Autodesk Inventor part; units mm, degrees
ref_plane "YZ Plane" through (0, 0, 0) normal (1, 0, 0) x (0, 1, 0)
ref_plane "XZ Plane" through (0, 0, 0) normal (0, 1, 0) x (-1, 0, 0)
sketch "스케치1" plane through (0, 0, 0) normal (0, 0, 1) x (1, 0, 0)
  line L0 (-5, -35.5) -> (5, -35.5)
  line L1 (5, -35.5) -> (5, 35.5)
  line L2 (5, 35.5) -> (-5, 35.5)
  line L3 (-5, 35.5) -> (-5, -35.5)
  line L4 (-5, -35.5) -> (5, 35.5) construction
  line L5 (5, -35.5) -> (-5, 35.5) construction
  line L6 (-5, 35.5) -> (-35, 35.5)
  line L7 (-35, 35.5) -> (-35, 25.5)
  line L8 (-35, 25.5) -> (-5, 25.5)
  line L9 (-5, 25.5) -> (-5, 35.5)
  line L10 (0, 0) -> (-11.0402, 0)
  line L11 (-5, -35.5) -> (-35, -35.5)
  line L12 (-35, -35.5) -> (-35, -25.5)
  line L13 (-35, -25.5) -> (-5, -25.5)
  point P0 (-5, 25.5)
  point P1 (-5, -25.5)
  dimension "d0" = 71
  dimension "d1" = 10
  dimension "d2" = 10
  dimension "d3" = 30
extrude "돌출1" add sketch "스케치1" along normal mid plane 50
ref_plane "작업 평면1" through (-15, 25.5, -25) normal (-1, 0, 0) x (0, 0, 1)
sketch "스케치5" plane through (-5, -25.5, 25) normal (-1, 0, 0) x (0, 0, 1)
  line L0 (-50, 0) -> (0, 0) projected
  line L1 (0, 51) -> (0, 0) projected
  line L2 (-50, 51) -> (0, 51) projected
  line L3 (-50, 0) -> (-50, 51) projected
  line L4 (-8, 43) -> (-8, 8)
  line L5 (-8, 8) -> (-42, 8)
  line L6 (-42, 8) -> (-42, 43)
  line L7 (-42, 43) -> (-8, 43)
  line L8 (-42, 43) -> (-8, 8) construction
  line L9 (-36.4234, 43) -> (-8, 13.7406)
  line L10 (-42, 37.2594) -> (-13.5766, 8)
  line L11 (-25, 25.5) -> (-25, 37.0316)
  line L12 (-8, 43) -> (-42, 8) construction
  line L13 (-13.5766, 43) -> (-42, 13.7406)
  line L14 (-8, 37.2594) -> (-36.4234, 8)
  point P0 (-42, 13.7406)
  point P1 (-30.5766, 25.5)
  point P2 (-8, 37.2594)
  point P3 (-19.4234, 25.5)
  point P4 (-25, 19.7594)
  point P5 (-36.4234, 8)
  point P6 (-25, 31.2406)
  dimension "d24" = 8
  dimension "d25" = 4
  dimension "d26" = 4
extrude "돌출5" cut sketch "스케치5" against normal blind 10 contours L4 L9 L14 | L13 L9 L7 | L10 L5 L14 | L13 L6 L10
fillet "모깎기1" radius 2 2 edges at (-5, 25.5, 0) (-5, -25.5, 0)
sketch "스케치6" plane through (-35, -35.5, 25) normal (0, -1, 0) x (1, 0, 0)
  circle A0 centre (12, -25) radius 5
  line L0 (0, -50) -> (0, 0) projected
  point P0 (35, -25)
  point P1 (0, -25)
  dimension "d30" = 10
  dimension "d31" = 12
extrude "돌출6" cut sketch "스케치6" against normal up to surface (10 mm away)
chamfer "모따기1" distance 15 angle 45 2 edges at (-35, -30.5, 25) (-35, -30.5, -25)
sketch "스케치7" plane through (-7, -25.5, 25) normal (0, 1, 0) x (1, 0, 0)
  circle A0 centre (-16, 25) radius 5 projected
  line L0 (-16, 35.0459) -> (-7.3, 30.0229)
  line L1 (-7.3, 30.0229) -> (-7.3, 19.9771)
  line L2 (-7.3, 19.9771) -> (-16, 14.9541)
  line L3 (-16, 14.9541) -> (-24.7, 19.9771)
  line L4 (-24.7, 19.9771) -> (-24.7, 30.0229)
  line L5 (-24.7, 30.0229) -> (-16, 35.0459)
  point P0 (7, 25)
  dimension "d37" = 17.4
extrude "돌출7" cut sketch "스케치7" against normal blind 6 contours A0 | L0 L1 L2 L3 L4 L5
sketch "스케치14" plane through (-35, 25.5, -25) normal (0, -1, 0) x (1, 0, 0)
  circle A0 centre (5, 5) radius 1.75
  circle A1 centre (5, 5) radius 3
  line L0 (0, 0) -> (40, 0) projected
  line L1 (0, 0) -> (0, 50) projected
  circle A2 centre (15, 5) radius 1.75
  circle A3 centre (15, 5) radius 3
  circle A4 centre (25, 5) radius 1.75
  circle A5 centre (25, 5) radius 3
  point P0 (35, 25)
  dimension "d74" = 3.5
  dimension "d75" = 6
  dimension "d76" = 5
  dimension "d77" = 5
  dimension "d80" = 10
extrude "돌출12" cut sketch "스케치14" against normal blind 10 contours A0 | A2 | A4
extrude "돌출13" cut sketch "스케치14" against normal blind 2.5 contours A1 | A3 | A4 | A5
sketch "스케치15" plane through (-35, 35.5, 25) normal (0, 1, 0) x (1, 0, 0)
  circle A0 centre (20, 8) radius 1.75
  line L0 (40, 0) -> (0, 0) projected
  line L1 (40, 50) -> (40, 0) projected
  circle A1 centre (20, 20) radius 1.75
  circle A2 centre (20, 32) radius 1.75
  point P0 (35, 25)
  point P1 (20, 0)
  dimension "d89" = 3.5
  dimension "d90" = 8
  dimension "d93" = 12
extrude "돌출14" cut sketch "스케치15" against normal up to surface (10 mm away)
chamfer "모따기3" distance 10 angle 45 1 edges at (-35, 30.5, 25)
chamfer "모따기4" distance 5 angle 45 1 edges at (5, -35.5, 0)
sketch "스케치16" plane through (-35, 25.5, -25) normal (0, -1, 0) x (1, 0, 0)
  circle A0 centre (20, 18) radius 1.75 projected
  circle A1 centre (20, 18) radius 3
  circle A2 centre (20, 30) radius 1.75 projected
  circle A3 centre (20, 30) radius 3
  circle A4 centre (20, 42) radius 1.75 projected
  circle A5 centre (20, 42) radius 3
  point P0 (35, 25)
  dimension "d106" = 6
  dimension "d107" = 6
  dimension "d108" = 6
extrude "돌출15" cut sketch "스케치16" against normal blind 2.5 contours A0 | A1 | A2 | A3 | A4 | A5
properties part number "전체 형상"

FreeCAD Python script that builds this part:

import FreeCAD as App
import Part
import Sketcher

V = App.Vector
Q = App.Units.Quantity


def edges_at(feature, points):
    """Names of the edges that pass closest to the given points."""
    edges = feature.Shape.Edges
    near = lambda p: min(range(len(edges)), key=lambda i: edges[i].distToShape(Part.Vertex(*p))[0])
    return sorted({f"Edge{near(p) + 1}" for p in points})

doc = App.newDocument("Part")
body = doc.addObject("PartDesign::Body", "Body")

sketch1 = body.newObject("Sketcher::SketchObject", "Sketch")
sketch1.AttachmentSupport = (doc.getObject("XY_Plane"), [""])
sketch1.MapMode = "FlatFace"
sketch1.addGeometry([
    Part.LineSegment(V(-5, -25.5, 0), V(-35, -25.5, 0)),
    Part.LineSegment(V(-35, -25.5, 0), V(-35, -35.5, 0)),
    Part.LineSegment(V(-35, -35.5, 0), V(5, -35.5, 0)),
    Part.LineSegment(V(5, -35.5, 0), V(5, 35.5, 0)),
    Part.LineSegment(V(5, 35.5, 0), V(-35, 35.5, 0)),
    Part.LineSegment(V(-35, 35.5, 0), V(-35, 25.5, 0)),
    Part.LineSegment(V(-35, 25.5, 0), V(-5, 25.5, 0)),
    Part.LineSegment(V(-5, 25.5, 0), V(-5, -25.5, 0)),
], False)
sketch1.addConstraint([
    Sketcher.Constraint("Coincident", 0, 2, 1, 1),
    Sketcher.Constraint("Coincident", 1, 2, 2, 1),
    Sketcher.Constraint("Coincident", 2, 2, 3, 1),
    Sketcher.Constraint("Coincident", 3, 2, 4, 1),
    Sketcher.Constraint("Coincident", 4, 2, 5, 1),
    Sketcher.Constraint("Coincident", 5, 2, 6, 1),
    Sketcher.Constraint("Coincident", 6, 2, 7, 1),
    Sketcher.Constraint("Coincident", 7, 2, 0, 1),
    Sketcher.Constraint("Horizontal", 0),
    Sketcher.Constraint("Vertical", 1),
    Sketcher.Constraint("Horizontal", 2),
    Sketcher.Constraint("Vertical", 3),
    Sketcher.Constraint("Horizontal", 4),
    Sketcher.Constraint("Vertical", 5),
    Sketcher.Constraint("Horizontal", 6),
    Sketcher.Constraint("Vertical", 7),
    Sketcher.Constraint("Symmetric", 1, 2, 4, 2, -1),
    Sketcher.Constraint("Equal", 1, 5),
    Sketcher.Constraint("DistanceX", 0, 2, 0, 1, Q("30 mm")),
    Sketcher.Constraint("DistanceY", 1, 2, 1, 1, Q("10 mm")),
    Sketcher.Constraint("DistanceY", 3, 1, 3, 2, Q("71 mm")),
    Sketcher.Constraint("DistanceX", 6, 2, 3, 2, Q("10 mm")),
    Sketcher.Constraint("DistanceX", 0, 2, -1, 1, Q("35 mm")),
])
pad1 = body.newObject("PartDesign::Pad", "Pad")
pad1.Profile = sketch1
pad1.Length = 50
pad1.Midplane = True

sketch2 = body.newObject("Sketcher::SketchObject", "Sketch001")
sketch2.AttachmentSupport = (doc.getObject("YZ_Plane"), [""])
sketch2.MapMode = "FlatFace"
sketch2.AttachmentOffset = App.Placement(V(0, 0, -5), App.Rotation())
sketch2.addGeometry([
    Part.LineSegment(V(-11.7594, 17, 0), V(11.7594, 17, 0)),
    Part.LineSegment(V(11.7594, 17, 0), V(0, 5.57659, 0)),
    Part.LineSegment(V(0, 5.57659, 0), V(-11.7594, 17, 0)),
    Part.LineSegment(V(5.740611, 0, 0), V(17.5, 11.4234, 0)),
    Part.LineSegment(V(17.5, 11.4234, 0), V(17.5, -11.4234, 0)),
    Part.LineSegment(V(17.5, -11.4234, 0), V(5.740611, 0, 0)),
    Part.LineSegment(V(-17.5, 11.4234, 0), V(-5.740611, 0, 0)),
    Part.LineSegment(V(-5.740611, 0, 0), V(-17.5, -11.4234, 0)),
    Part.LineSegment(V(-17.5, -11.4234, 0), V(-17.5, 11.4234, 0)),
    Part.LineSegment(V(-11.7594, -17, 0), V(0, -5.57659, 0)),
    Part.LineSegment(V(0, -5.57659, 0), V(11.7594, -17, 0)),
    Part.LineSegment(V(11.7594, -17, 0), V(-11.7594, -17, 0)),
], False)
sketch2.addConstraint([
    Sketcher.Constraint("Coincident", 0, 2, 1, 1),
    Sketcher.Constraint("Coincident", 1, 2, 2, 1),
    Sketcher.Constraint("Coincident", 2, 2, 0, 1),
    Sketcher.Constraint("Coincident", 3, 2, 4, 1),
    Sketcher.Constraint("Coincident", 4, 2, 5, 1),
    Sketcher.Constraint("Coincident", 5, 2, 3, 1),
    Sketcher.Constraint("Coincident", 6, 2, 7, 1),
    Sketcher.Constraint("Coincident", 7, 2, 8, 1),
    Sketcher.Constraint("Coincident", 8, 2, 6, 1),
    Sketcher.Constraint("Coincident", 9, 2, 10, 1),
    Sketcher.Constraint("Coincident", 10, 2, 11, 1),
    Sketcher.Constraint("Coincident", 11, 2, 9, 1),
    Sketcher.Constraint("Horizontal", 0),
    Sketcher.Constraint("Vertical", 4),
    Sketcher.Constraint("Vertical", 8),
    Sketcher.Constraint("Horizontal", 11),
    Sketcher.Constraint("Symmetric", 5, 2, 6, 2, -1, 1),
    Sketcher.Constraint("Symmetric", 3, 2, 7, 2, -1, 1),
    Sketcher.Constraint("Symmetric", 1, 2, 9, 2, -1, 1),
    Sketcher.Constraint("Symmetric", 2, 2, 10, 2, -1, 1),
    Sketcher.Constraint("PointOnObject", 1, 2, -2),
    Sketcher.Constraint("PointOnObject", 5, 2, -1),
    Sketcher.Constraint("Parallel", 1, 3),
    Sketcher.Constraint("Parallel", 2, 5),
    Sketcher.Constraint("Parallel", 5, 6),
    Sketcher.Constraint("Parallel", 7, 9),
    Sketcher.Constraint("Horizontal", 4, 2, 7, 2),
    Sketcher.Constraint("Equal", 2, 3),
    Sketcher.Constraint("DistanceY", -1, 1, 0, 2, Q("17 mm")),
    Sketcher.Constraint("DistanceX", 7, 2, 4, 2, Q("35 mm")),
    Sketcher.Constraint("Angle", 1, Q("-135.8303 deg")),
    Sketcher.Constraint("DistanceX", 0, 1, 0, 2, Q("23.5188 mm")),
])
pocket1 = body.newObject("PartDesign::Pocket", "Pocket")
pocket1.Profile = sketch2
pocket1.Length = 10
pocket1.Reversed = True
doc.recompute()

fillet = body.newObject("PartDesign::Fillet", "Fillet")
fillet.Base = (pocket1, edges_at(pocket1, [(-5, 25.5, 0), (-5, -25.5, 0)]))
fillet.Radius = 2

sketch3 = body.newObject("Sketcher::SketchObject", "Sketch002")
sketch3.AttachmentSupport = (doc.getObject("XZ_Plane"), [""])
sketch3.MapMode = "FlatFace"
sketch3.AttachmentOffset = App.Placement(V(0, 0, 35.5), App.Rotation())
sketch3.addGeometry(Part.Circle(V(-23, 0, 0), V(0, 0, 1), 5), False)
sketch3.addConstraint([
    Sketcher.Constraint("PointOnObject", 0, 3, -1),
    Sketcher.Constraint("Diameter", 0, Q("10 mm")),
    Sketcher.Constraint("DistanceX", 0, 3, -1, 1, Q("23 mm")),
])
pocket2 = body.newObject("PartDesign::Pocket", "Pocket001")
pocket2.Profile = sketch3
pocket2.Length = 10
doc.recompute()

chamfer = body.newObject("PartDesign::Chamfer", "Chamfer")
chamfer.Base = (pocket2, edges_at(pocket2, [(-35, -30.5, 25), (-35, -30.5, -25)]))
chamfer.Size = 15

sketch4 = body.newObject("Sketcher::SketchObject", "Sketch003")
sketch4.AttachmentSupport = (doc.getObject("XZ_Plane"), [""])
sketch4.MapMode = "FlatFace"
sketch4.AttachmentOffset = App.Placement(V(0, 0, 25.5), App.Rotation())
sketch4.addGeometry([
    Part.LineSegment(V(-14.3, -5.0229, 0), V(-23, -10.0459, 0)),
    Part.LineSegment(V(-23, -10.0459, 0), V(-31.7, -5.0229, 0)),
    Part.LineSegment(V(-31.7, -5.0229, 0), V(-31.7, 5.0229, 0)),
    Part.LineSegment(V(-31.7, 5.0229, 0), V(-23, 10.0459, 0)),
    Part.LineSegment(V(-23, 10.0459, 0), V(-14.3, 5.0229, 0)),
    Part.LineSegment(V(-14.3, 5.0229, 0), V(-14.3, -5.0229, 0)),
], False)
sketch4.addConstraint([
    Sketcher.Constraint("Coincident", 0, 2, 1, 1),
    Sketcher.Constraint("Coincident", 1, 2, 2, 1),
    Sketcher.Constraint("Coincident", 2, 2, 3, 1),
    Sketcher.Constraint("Coincident", 3, 2, 4, 1),
    Sketcher.Constraint("Coincident", 4, 2, 5, 1),
    Sketcher.Constraint("Coincident", 5, 2, 0, 1),
    Sketcher.Constraint("Vertical", 2),
    Sketcher.Constraint("Vertical", 5),
    Sketcher.Constraint("Symmetric", 0, 2, 3, 2, -1),
    Sketcher.Constraint("Parallel", 0, 3),
    Sketcher.Constraint("Parallel", 1, 4),
    Sketcher.Constraint("Horizontal", 2, 2, 4, 2),
    Sketcher.Constraint("Horizontal", 1, 2, 5, 2),
    Sketcher.Constraint("DistanceX", 2, 2, 4, 2, Q("17.4 mm")),
    Sketcher.Constraint("Angle", 0, Q("-149.9997 deg")),
    Sketcher.Constraint("DistanceX", 0, 2, -1, 1, Q("23 mm")),
    Sketcher.Constraint("DistanceY", 2, 1, 2, 2, Q("10.0458 mm")),
])
pocket3 = body.newObject("PartDesign::Pocket", "Pocket002")
pocket3.Profile = sketch4
pocket3.Length = 6
pocket3.Reversed = True

sketch5 = body.newObject("Sketcher::SketchObject", "Sketch004")
sketch5.AttachmentSupport = (doc.getObject("XZ_Plane"), [""])
sketch5.MapMode = "FlatFace"
sketch5.AttachmentOffset = App.Placement(V(0, 0, -25.5), App.Rotation())
sketch5.addGeometry([
    Part.Circle(V(-30, -20, 0), V(0, 0, 1), 1.75),
    Part.Circle(V(-20, -20, 0), V(0, 0, 1), 1.75),
    Part.Circle(V(-10, -20, 0), V(0, 0, 1), 1.75),
], False)
sketch5.addConstraint([
    Sketcher.Constraint("Equal", 0, 1),
    Sketcher.Constraint("Equal", 1, 2),
    Sketcher.Constraint("Horizontal", 0, 3, 1, 3),
    Sketcher.Constraint("Horizontal", 1, 3, 2, 3),
    Sketcher.Constraint("Diameter", 0, Q("3.5 mm")),
    Sketcher.Constraint("DistanceX", 2, 3, -1, 1, Q("10 mm")),
    Sketcher.Constraint("DistanceX", 0, 3, 1, 3, Q("10 mm")),
    Sketcher.Constraint("DistanceX", 1, 3, 2, 3, Q("10 mm")),
    Sketcher.Constraint("DistanceY", 0, 3, -1, 1, Q("20 mm")),
])
pocket4 = body.newObject("PartDesign::Pocket", "Pocket003")
pocket4.Profile = sketch5
pocket4.Length = 10

sketch6 = body.newObject("Sketcher::SketchObject", "Sketch005")
sketch6.AttachmentSupport = (doc.getObject("XZ_Plane"), [""])
sketch6.MapMode = "FlatFace"
sketch6.AttachmentOffset = App.Placement(V(0, 0, -25.5), App.Rotation())
sketch6.addGeometry([
    Part.Circle(V(-30, -20, 0), V(0, 0, 1), 3),
    Part.Circle(V(-30, -20, 0), V(0, 0, 1), 1.75),
    Part.Circle(V(-20, -20, 0), V(0, 0, 1), 3),
    Part.Circle(V(-20, -20, 0), V(0, 0, 1), 1.75),
    Part.Circle(V(-10, -20, 0), V(0, 0, 1), 3),
], False)
sketch6.addConstraint([
    Sketcher.Constraint("Coincident", 1, 3, 0, 3),
    Sketcher.Constraint("Coincident", 3, 3, 2, 3),
    Sketcher.Constraint("Equal", 0, 2),
    Sketcher.Constraint("Equal", 1, 3),
    Sketcher.Constraint("Equal", 2, 4),
    Sketcher.Constraint("Horizontal", 1, 3, 2, 3),
    Sketcher.Constraint("Horizontal", 3, 3, 4, 3),
    Sketcher.Constraint("Diameter", 0, Q("6 mm")),
    Sketcher.Constraint("Diameter", 1, Q("3.5 mm")),
    Sketcher.Constraint("DistanceX", 4, 3, -1, 1, Q("10 mm")),
    Sketcher.Constraint("DistanceX", 0, 3, 2, 3, Q("10 mm")),
    Sketcher.Constraint("DistanceX", 2, 3, 4, 3, Q("10 mm")),
    Sketcher.Constraint("DistanceY", 0, 3, -1, 1, Q("20 mm")),
])
pocket5 = body.newObject("PartDesign::Pocket", "Pocket004")
pocket5.Profile = sketch6
pocket5.Length = 2.5

sketch7 = body.newObject("Sketcher::SketchObject", "Sketch006")
sketch7.AttachmentSupport = (doc.getObject("XZ_Plane"), [""])
sketch7.MapMode = "FlatFace"
sketch7.AttachmentOffset = App.Placement(V(0, 0, -35.5), App.Rotation())
sketch7.addGeometry([
    Part.Circle(V(-15, 17, 0), V(0, 0, 1), 1.75),
    Part.Circle(V(-15, 5, 0), V(0, 0, 1), 1.75),
    Part.Circle(V(-15, -7, 0), V(0, 0, 1), 1.75),
], False)
sketch7.addConstraint([
    Sketcher.Constraint("Equal", 0, 1),
    Sketcher.Constraint("Equal", 1, 2),
    Sketcher.Constraint("Vertical", 0, 3, 1, 3),
    Sketcher.Constraint("Vertical", 1, 3, 2, 3),
    Sketcher.Constraint("Diameter", 0, Q("3.5 mm")),
    Sketcher.Constraint("DistanceY", 1, 3, 0, 3, Q("12 mm")),
    Sketcher.Constraint("DistanceY", 2, 3, 1, 3, Q("12 mm")),
    Sketcher.Constraint("DistanceX", 0, 3, -1, 1, Q("15 mm")),
    Sketcher.Constraint("DistanceY", -1, 1, 0, 3, Q("17 mm")),
])
pocket6 = body.newObject("PartDesign::Pocket", "Pocket005")
pocket6.Profile = sketch7
pocket6.Length = 10
pocket6.Reversed = True
doc.recompute()

chamfer2 = body.newObject("PartDesign::Chamfer", "Chamfer001")
chamfer2.Base = (pocket6, edges_at(pocket6, [(-35, 30.5, 25)]))
chamfer2.Size = 10
doc.recompute()

chamfer3 = body.newObject("PartDesign::Chamfer", "Chamfer002")
chamfer3.Base = (chamfer2, edges_at(chamfer2, [(5, -35.5, 0)]))
chamfer3.Size = 5

sketch8 = body.newObject("Sketcher::SketchObject", "Sketch007")
sketch8.AttachmentSupport = (doc.getObject("XZ_Plane"), [""])
sketch8.MapMode = "FlatFace"
sketch8.AttachmentOffset = App.Placement(V(0, 0, -25.5), App.Rotation())
sketch8.addGeometry([
    Part.Circle(V(-15, -7, 0), V(0, 0, 1), 3),
    Part.Circle(V(-15, 5, 0), V(0, 0, 1), 3),
    Part.Circle(V(-15, 17, 0), V(0, 0, 1), 3),
], False)
sketch8.addConstraint([
    Sketcher.Constraint("Equal", 0, 1),
    Sketcher.Constraint("Equal", 1, 2),
    Sketcher.Constraint("Vertical", 0, 3, 1, 3),
    Sketcher.Constraint("Vertical", 1, 3, 2, 3),
    Sketcher.Constraint("Diameter", 0, Q("6 mm")),
    Sketcher.Constraint("DistanceX", 0, 3, -1, 1, Q("15 mm")),
    Sketcher.Constraint("DistanceY", 0, 3, -1, 1, Q("7 mm")),
    Sketcher.Constraint("DistanceY", -1, 1, 1, 3, Q("5 mm")),
    Sketcher.Constraint("DistanceY", -1, 1, 2, 3, Q("17 mm")),
])
pocket7 = body.newObject("PartDesign::Pocket", "Pocket006")
pocket7.Profile = sketch8
pocket7.Length = 2.5

doc.recompute()
